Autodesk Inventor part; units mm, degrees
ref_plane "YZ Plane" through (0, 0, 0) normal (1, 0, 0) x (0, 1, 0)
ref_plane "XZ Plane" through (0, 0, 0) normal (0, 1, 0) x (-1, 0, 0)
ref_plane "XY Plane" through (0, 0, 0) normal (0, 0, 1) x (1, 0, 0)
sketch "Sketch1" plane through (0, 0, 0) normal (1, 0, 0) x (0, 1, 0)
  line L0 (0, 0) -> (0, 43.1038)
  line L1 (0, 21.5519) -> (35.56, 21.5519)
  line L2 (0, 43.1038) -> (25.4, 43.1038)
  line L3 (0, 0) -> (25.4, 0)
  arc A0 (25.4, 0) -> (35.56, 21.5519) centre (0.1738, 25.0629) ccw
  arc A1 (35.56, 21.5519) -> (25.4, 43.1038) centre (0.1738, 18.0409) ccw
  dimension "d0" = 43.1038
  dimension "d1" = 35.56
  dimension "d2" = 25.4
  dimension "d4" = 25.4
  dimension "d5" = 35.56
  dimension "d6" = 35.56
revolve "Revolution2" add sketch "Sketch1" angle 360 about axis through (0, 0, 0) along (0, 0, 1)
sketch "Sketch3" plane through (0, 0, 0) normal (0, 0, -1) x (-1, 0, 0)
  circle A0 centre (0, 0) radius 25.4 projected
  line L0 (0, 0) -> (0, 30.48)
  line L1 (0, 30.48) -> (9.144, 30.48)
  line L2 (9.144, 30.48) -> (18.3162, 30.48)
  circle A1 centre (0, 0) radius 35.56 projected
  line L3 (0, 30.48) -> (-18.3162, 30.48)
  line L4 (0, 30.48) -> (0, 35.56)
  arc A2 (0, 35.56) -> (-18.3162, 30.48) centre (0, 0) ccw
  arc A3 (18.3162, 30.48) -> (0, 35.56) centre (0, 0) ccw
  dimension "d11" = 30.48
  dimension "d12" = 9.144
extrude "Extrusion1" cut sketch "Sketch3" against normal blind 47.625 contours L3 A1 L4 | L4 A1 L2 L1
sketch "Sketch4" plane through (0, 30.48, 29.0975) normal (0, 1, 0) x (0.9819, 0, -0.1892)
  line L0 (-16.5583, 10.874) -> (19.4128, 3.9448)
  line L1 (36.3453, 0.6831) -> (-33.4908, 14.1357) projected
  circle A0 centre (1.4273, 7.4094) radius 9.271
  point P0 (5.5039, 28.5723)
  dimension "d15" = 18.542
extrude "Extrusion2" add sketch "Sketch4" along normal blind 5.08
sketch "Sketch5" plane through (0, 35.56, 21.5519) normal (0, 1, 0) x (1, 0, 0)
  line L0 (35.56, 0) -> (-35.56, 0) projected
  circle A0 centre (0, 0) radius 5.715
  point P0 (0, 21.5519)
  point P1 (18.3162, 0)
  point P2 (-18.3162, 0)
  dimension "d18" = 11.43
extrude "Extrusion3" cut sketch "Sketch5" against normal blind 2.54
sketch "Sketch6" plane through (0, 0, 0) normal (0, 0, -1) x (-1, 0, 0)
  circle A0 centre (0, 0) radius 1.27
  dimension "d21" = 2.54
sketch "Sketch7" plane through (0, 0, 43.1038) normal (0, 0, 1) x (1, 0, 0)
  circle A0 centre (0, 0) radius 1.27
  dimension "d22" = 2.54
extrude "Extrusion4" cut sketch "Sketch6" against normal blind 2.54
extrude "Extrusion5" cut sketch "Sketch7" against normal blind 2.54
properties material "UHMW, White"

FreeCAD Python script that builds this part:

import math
import FreeCAD as App
import Part
import Sketcher

V = App.Vector
Q = App.Units.Quantity

doc = App.newDocument("Part")
body = doc.addObject("PartDesign::Body", "Body")

# Sketch on YZ plane
sketch1 = body.newObject("Sketcher::SketchObject", "Sketch")
sketch1.AttachmentSupport = (doc.getObject("YZ_Plane"), [""])
sketch1.MapMode = "FlatFace"
sketch1.addGeometry(Part.LineSegment(V(0, 0, 0), V(25.4, 0, 0)), False)
sketch1.addGeometry(Part.ArcOfCircle(Part.Circle(V(0.1738, 25.0629, 0), V(0, 0, 1), 35.559951), math.radians(-44.813948), math.radians(-5.666311)), False)
sketch1.addGeometry(Part.ArcOfCircle(Part.Circle(V(0.1738, 18.0409, 0), V(0, 0, 1), 35.559953), math.radians(5.666311), math.radians(44.813948)), False)
sketch1.addGeometry(Part.LineSegment(V(25.4, 43.1038, 0), V(0, 43.1038, 0)), False)
sketch1.addGeometry(Part.LineSegment(V(0, 43.1038, 0), V(0, 0, 0)), False)
sketch1.addConstraint(Sketcher.Constraint("Coincident", 0, 2, 1, 1))
sketch1.addConstraint(Sketcher.Constraint("Coincident", 1, 2, 2, 1))
sketch1.addConstraint(Sketcher.Constraint("Coincident", 2, 2, 3, 1))
sketch1.addConstraint(Sketcher.Constraint("Coincident", 3, 2, 4, 1))
sketch1.addConstraint(Sketcher.Constraint("Coincident", 4, 2, 0, 1))
sketch1.addConstraint(Sketcher.Constraint("Horizontal", 0))
sketch1.addConstraint(Sketcher.Constraint("Horizontal", 3))
sketch1.addConstraint(Sketcher.Constraint("Vertical", 4))
sketch1.addConstraint(Sketcher.Constraint("Coincident", 4, 2, -1, 1))
sketch1.addConstraint(Sketcher.Constraint("Equal", 1, 2))
sketch1.addConstraint(Sketcher.Constraint("Vertical", 1, 3, 2, 3))
sketch1.addConstraint(Sketcher.Constraint("Vertical", 0, 2, 2, 2))
sketch1.addConstraint(Sketcher.Constraint("Radius", 1, Q("1.4 in")))
sketch1.addConstraint(Sketcher.Constraint("DistanceX", 0, 1, 0, 2, Q("1 in")))
sketch1.addConstraint(Sketcher.Constraint("DistanceX", -1, 1, 1, 2, Q("1.4 in")))
sketch1.addConstraint(Sketcher.Constraint("DistanceY", 4, 2, 4, 1, Q("1.697 in")))
revolution = body.newObject("PartDesign::Revolution", "Revolution")
revolution.Profile = sketch1
revolution.ReferenceAxis = (sketch1, ["V_Axis"])
revolution.Angle = 360

# Sketch on XY plane
sketch2 = body.newObject("Sketcher::SketchObject", "Sketch001")
sketch2.AttachmentSupport = (doc.getObject("XY_Plane"), [""])
sketch2.MapMode = "FlatFace"
sketch2.addGeometry(Part.LineSegment(V(18.3162, 30.48, 0), V(-18.3162, 30.48, 0)), False)
sketch2.addGeometry(Part.ArcOfCircle(Part.Circle(V(0, 0, 0), V(0, 0, 1), 35.56), math.radians(58.997282), math.radians(121.002718)), False)
sketch2.addConstraint(Sketcher.Constraint("Coincident", 0, 1, 1, 1))
sketch2.addConstraint(Sketcher.Constraint("Coincident", 1, 2, 0, 2))
sketch2.addConstraint(Sketcher.Constraint("Horizontal", 0))
sketch2.addConstraint(Sketcher.Constraint("Coincident", 1, 3, -1, 1))
sketch2.addConstraint(Sketcher.Constraint("DistanceY", -1, 1, 0, 1, Q("1.2 in")))
sketch2.addConstraint(Sketcher.Constraint("Radius", 1, Q("1.4 in")))
pocket1 = body.newObject("PartDesign::Pocket", "Pocket")
pocket1.Profile = sketch2
pocket1.Length = Q("1.875 in")
pocket1.Reversed = True

# Sketch on XZ plane
sketch3 = body.newObject("Sketcher::SketchObject", "Sketch002")
sketch3.AttachmentSupport = (doc.getObject("XZ_Plane"), [""])
sketch3.MapMode = "FlatFace"
sketch3.AttachmentOffset = App.Placement(V(0, 0, -1.2 * 25.4), App.Rotation())
sketch3.addGeometry(Part.Circle(V(-0.000393, 21.551879, 0), V(0, 0, 1), 9.271), False)
sketch3.addConstraint(Sketcher.Constraint("Diameter", 0, Q("0.73 in")))
sketch3.addConstraint(Sketcher.Constraint("DistanceY", -1, 1, 0, 3, Q("0.8485 in")))
sketch3.addConstraint(Sketcher.Constraint("DistanceX", 0, 3, -1, 1, Q("0.0004 mm")))
pad1 = body.newObject("PartDesign::Pad", "Pad")
pad1.Profile = sketch3
pad1.Length = Q("0.2 in")
pad1.Reversed = True

# Sketch on XZ plane
sketch4 = body.newObject("Sketcher::SketchObject", "Sketch003")
sketch4.AttachmentSupport = (doc.getObject("XZ_Plane"), [""])
sketch4.MapMode = "FlatFace"
sketch4.AttachmentOffset = App.Placement(V(0, 0, -1.4 * 25.4), App.Rotation())
sketch4.addGeometry(Part.Circle(V(0, 21.5519, 0), V(0, 0, 1), 5.715), False)
sketch4.addConstraint(Sketcher.Constraint("PointOnObject", 0, 3, -2))
sketch4.addConstraint(Sketcher.Constraint("Diameter", 0, Q("0.45 in")))
sketch4.addConstraint(Sketcher.Constraint("DistanceY", -1, 1, 0, 3, Q("0.8485 in")))
pocket2 = body.newObject("PartDesign::Pocket", "Pocket001")
pocket2.Profile = sketch4
pocket2.Length = Q("0.1 in")
pocket2.Reversed = True

# Sketch on XY plane
sketch5 = body.newObject("Sketcher::SketchObject", "Sketch004")
sketch5.AttachmentSupport = (doc.getObject("XY_Plane"), [""])
sketch5.MapMode = "FlatFace"
sketch5.addGeometry(Part.Circle(V(0, 0, 0), V(0, 0, 1), 1.27), False)
sketch5.addConstraint(Sketcher.Constraint("Coincident", 0, 3, -1, 1))
sketch5.addConstraint(Sketcher.Constraint("Diameter", 0, Q("0.1 in")))
pocket3 = body.newObject("PartDesign::Pocket", "Pocket002")
pocket3.Profile = sketch5
pocket3.Length = Q("0.1 in")
pocket3.Reversed = True

# Sketch on XY plane
sketch6 = body.newObject("Sketcher::SketchObject", "Sketch005")
sketch6.AttachmentSupport = (doc.getObject("XY_Plane"), [""])
sketch6.MapMode = "FlatFace"
sketch6.AttachmentOffset = App.Placement(V(0, 0, 1.697 * 25.4), App.Rotation())
sketch6.addGeometry(Part.Circle(V(0, 0, 0), V(0, 0, 1), 1.27), False)
sketch6.addConstraint(Sketcher.Constraint("Coincident", 0, 3, -1, 1))
sketch6.addConstraint(Sketcher.Constraint("Diameter", 0, Q("0.1 in")))
pocket4 = body.newObject("PartDesign::Pocket", "Pocket003")
pocket4.Profile = sketch6
pocket4.Length = Q("0.1 in")

doc.recompute()
